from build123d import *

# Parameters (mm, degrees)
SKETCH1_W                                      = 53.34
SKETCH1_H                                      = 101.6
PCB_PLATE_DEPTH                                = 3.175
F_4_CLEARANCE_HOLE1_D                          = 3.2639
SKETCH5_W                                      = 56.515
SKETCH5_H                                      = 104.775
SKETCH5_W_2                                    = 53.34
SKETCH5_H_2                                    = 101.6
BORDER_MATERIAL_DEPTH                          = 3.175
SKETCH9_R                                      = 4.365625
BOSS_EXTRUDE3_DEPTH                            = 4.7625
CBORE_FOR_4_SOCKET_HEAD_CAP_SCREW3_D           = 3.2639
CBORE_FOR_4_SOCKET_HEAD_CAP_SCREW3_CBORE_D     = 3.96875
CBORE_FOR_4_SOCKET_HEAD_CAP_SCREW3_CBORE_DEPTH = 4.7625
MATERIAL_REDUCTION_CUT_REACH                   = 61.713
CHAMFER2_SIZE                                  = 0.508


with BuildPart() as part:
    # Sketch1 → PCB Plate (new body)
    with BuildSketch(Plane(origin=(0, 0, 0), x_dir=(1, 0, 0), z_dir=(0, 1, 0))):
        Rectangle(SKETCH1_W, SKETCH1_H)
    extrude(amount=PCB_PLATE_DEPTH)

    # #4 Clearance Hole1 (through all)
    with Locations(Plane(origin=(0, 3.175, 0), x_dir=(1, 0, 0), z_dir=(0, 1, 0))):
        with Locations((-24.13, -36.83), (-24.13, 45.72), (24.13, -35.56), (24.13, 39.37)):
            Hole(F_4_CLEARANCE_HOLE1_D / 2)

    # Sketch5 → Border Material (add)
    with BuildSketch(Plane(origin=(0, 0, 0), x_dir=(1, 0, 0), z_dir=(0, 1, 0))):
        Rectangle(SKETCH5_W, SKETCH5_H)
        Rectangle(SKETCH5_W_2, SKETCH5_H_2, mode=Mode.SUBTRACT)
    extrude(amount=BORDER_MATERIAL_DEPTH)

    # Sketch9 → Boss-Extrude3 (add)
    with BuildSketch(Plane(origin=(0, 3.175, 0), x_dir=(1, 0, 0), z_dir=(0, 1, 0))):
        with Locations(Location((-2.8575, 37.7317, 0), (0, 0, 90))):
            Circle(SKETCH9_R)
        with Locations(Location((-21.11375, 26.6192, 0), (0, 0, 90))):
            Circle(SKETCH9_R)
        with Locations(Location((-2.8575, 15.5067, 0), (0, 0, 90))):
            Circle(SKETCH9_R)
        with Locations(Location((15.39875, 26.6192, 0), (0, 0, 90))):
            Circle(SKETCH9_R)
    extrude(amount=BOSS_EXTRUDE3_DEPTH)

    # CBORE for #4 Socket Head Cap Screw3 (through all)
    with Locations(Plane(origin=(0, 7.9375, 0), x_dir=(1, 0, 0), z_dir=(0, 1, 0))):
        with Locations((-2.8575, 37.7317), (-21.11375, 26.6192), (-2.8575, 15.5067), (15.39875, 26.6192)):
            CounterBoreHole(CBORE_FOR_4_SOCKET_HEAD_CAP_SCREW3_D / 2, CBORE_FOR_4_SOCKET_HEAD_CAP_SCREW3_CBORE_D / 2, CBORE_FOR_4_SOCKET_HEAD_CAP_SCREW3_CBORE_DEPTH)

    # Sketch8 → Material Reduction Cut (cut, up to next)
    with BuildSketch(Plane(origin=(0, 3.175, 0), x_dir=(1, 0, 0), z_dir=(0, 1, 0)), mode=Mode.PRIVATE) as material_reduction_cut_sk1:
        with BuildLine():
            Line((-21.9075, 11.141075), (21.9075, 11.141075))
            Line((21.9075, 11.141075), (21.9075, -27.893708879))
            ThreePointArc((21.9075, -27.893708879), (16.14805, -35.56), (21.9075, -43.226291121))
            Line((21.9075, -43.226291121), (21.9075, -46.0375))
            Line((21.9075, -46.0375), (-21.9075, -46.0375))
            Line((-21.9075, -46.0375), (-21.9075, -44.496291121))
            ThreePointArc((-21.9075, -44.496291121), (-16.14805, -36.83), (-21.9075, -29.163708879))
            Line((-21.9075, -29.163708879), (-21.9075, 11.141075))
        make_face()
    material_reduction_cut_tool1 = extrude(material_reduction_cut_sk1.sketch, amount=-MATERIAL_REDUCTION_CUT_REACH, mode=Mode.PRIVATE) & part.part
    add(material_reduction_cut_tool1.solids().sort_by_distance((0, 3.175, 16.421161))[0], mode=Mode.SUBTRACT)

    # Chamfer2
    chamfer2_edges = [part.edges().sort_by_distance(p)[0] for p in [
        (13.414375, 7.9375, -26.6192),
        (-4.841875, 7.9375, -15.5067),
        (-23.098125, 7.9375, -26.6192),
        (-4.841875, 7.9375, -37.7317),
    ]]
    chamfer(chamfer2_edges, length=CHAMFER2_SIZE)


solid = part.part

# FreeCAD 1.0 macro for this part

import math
import FreeCAD as App
import Part
import Sketcher
from FreeCAD import Vector
Q = App.Units.Quantity


def edges_at(feature, points):
    """Names of the edges that pass closest to the given points."""
    edges = feature.Shape.Edges
    near = lambda p: min(range(len(edges)), key=lambda i: edges[i].distToShape(Part.Vertex(*p))[0])
    return sorted({f"Edge{near(p) + 1}" for p in points})


def add_polygon(sketch, points):
    """Adds a closed chain of lines whose ends are joined by coincident constraints."""
    first, n = sketch.GeometryCount, len(points)
    for a, b in zip(points, points[1:] + points[:1]):
        sketch.addGeometry(Part.LineSegment(App.Vector(*a, 0), App.Vector(*b, 0)), False)
    for i in range(n):
        sketch.addConstraint(Sketcher.Constraint("Coincident", first + i, 2, first + (i + 1) % n, 1))

doc = App.newDocument("Part")
body = doc.addObject("PartDesign::Body", "Body")

# Sketch on XZ plane
sketch1 = doc.addObject("Sketcher::SketchObject", "Sketch")
body.addObject(sketch1)
sketch1.AttachmentSupport = (doc.XZ_Plane, [""])
sketch1.MapMode = "FlatFace"
add_polygon(sketch1, [(-27, -51), (-27, 51), (27, 51), (27, -51)])  # lines 0-3
sketch1.addConstraint([
    Sketcher.Constraint("Vertical", 0),
    Sketcher.Constraint("Horizontal", 1),
    Sketcher.Constraint("Vertical", 2),
    Sketcher.Constraint("Horizontal", 3),
    Sketcher.Constraint("Symmetric", 0, 2, 2, 2, -1, 1),
    Sketcher.Constraint("DistanceY", 0, 1, 0, 2, Q("4 in")),
    Sketcher.Constraint("DistanceX", 1, 1, 1, 2, Q("2.1 in")),
])
pad1 = doc.addObject("PartDesign::Pad", "Pad")
body.addObject(pad1)
pad1.Profile = sketch1
pad1.Length = Q("0.125 in")
pad1.Reversed = True

# Sketch on XZ plane
sketch2 = doc.addObject("Sketcher::SketchObject", "Sketch001")
body.addObject(sketch2)
sketch2.AttachmentSupport = (doc.XZ_Plane, [""])
sketch2.MapMode = "FlatFace"
sketch2.AttachmentOffset = App.Placement(Vector(0, 0, -0.125 * 25.4), App.Rotation())
sketch2.addGeometry([
    Part.Circle(Vector(-24.1, 36.8, 0), Vector(0, 0, 1), 1.6),
    Part.Circle(Vector(-24.1, -45.7, 0), Vector(0, 0, 1), 1.6),
    Part.Circle(Vector(24.1, 35.6, 0), Vector(0, 0, 1), 1.6),
    Part.Circle(Vector(24.1, -39.4, 0), Vector(0, 0, 1), 1.6),
], False)
sketch2.addConstraint([
    Sketcher.Constraint("Equal", 0, 1),
    Sketcher.Constraint("Equal", 1, 2),
    Sketcher.Constraint("Equal", 2, 3),
    Sketcher.Constraint("Vertical", 0, 3, 1, 3),
    Sketcher.Constraint("Vertical", 2, 3, 3, 3),
    Sketcher.Constraint("DistanceY", 3, 3, 0, 3, Q("3 in")),
    Sketcher.Constraint("Diameter", 0, Q("0.1285 in")),
    Sketcher.Constraint("DistanceY", 1, 3, -1, 1, Q("1.8 in")),
    Sketcher.Constraint("DistanceY", -1, 1, 2, 3, Q("1.4 in")),
    Sketcher.Constraint("DistanceX", 0, 3, 2, 3, Q("1.9 in")),
    Sketcher.Constraint("DistanceX", 0, 3, -1, 1, Q("0.95 in")),
    Sketcher.Constraint("DistanceY", -1, 1, 0, 3, Q("1.45 in")),
])
doc.recompute()
hole = doc.addObject("PartDesign::Hole", "Hole")
body.addObject(hole)
hole.Profile = sketch2
hole.ThreadType = "None"
hole.Diameter = Q("0.1285 in")
hole.DepthType = "ThroughAll"
hole.Reversed = True

# Sketch on XZ plane
sketch3 = doc.addObject("Sketcher::SketchObject", "Sketch002")
body.addObject(sketch3)
sketch3.AttachmentSupport = (doc.XZ_Plane, [""])
sketch3.MapMode = "FlatFace"
add_polygon(sketch3, [(-28, -52), (-28, 52), (28, 52), (28, -52)])  # lines 0-3
add_polygon(sketch3, [(27, 51), (-27, 51), (-27, -51), (27, -51)])  # lines 4-7
sketch3.addConstraint([
    Sketcher.Constraint("Vertical", 0),
    Sketcher.Constraint("Horizontal", 1),
    Sketcher.Constraint("Vertical", 2),
    Sketcher.Constraint("Horizontal", 3),
    Sketcher.Constraint("Horizontal", 4),
    Sketcher.Constraint("Vertical", 5),
    Sketcher.Constraint("Horizontal", 6),
    Sketcher.Constraint("Vertical", 7),
    Sketcher.Constraint("Symmetric", 0, 2, 2, 2, -1, 1),
    Sketcher.Constraint("Symmetric", 4, 2, 6, 2, -1, 1),
    Sketcher.Constraint("DistanceY", 5, 2, 5, 1, Q("4 in")),
    Sketcher.Constraint("DistanceX", 4, 2, 4, 1, Q("2.1 in")),
    Sketcher.Constraint("DistanceX", 1, 1, 1, 2, Q("2.225 in")),
    Sketcher.Constraint("DistanceY", 0, 1, 0, 2, Q("4.125 in")),
])
pad2 = doc.addObject("PartDesign::Pad", "Pad001")
body.addObject(pad2)
pad2.Profile = sketch3
pad2.Length = Q("0.125 in")
pad2.Reversed = True

# Sketch on XZ plane
sketch4 = doc.addObject("Sketcher::SketchObject", "Sketch003")
body.addObject(sketch4)
sketch4.AttachmentSupport = (doc.XZ_Plane, [""])
sketch4.MapMode = "FlatFace"
sketch4.AttachmentOffset = App.Placement(Vector(0, 0, -0.125 * 25.4), App.Rotation())
sketch4.addGeometry([
    Part.Circle(Vector(-2.9, -37.7, 0), Vector(0, 0, 1), 4.4),
    Part.Circle(Vector(-21.1, -26.6, 0), Vector(0, 0, 1), 4.4),
    Part.Circle(Vector(-2.9, -15.5, 0), Vector(0, 0, 1), 4.4),
    Part.Circle(Vector(15.4, -26.6, 0), Vector(0, 0, 1), 4.4),
], False)
sketch4.addConstraint([
    Sketcher.Constraint("Equal", 0, 1),
    Sketcher.Constraint("Equal", 1, 2),
    Sketcher.Constraint("Equal", 2, 3),
    Sketcher.Constraint("Horizontal", 1, 3, 3, 3),
    Sketcher.Constraint("Vertical", 0, 3, 2, 3),
    Sketcher.Constraint("Diameter", 0, Q("0.34375 in")),
    Sketcher.Constraint("DistanceY", 1, 3, -1, 1, Q("1.048 in")),
    Sketcher.Constraint("DistanceX", 1, 3, 0, 3, Q("0.71875 in")),
    Sketcher.Constraint("DistanceY", 0, 3, 1, 3, Q("0.4375 in")),
    Sketcher.Constraint("DistanceY", 1, 3, 2, 3, Q("0.4375 in")),
    Sketcher.Constraint("DistanceX", 0, 3, 3, 3, Q("0.71875 in")),
    Sketcher.Constraint("DistanceX", 0, 3, -1, 1, Q("0.1125 in")),
])
pad3 = doc.addObject("PartDesign::Pad", "Pad002")
body.addObject(pad3)
pad3.Profile = sketch4
pad3.Length = Q("0.1875 in")
pad3.Reversed = True

# Sketch on XZ plane
sketch5 = doc.addObject("Sketcher::SketchObject", "Sketch004")
body.addObject(sketch5)
sketch5.AttachmentSupport = (doc.XZ_Plane, [""])
sketch5.MapMode = "FlatFace"
sketch5.AttachmentOffset = App.Placement(Vector(0, 0, -0.3125 * 25.4), App.Rotation())
sketch5.addGeometry([
    Part.Circle(Vector(-2.9, -37.7, 0), Vector(0, 0, 1), 1.6),
    Part.Circle(Vector(-21.1, -26.6, 0), Vector(0, 0, 1), 1.6),
    Part.Circle(Vector(-2.9, -15.5, 0), Vector(0, 0, 1), 1.6),
    Part.Circle(Vector(15.4, -26.6, 0), Vector(0, 0, 1), 1.6),
], False)
sketch5.addConstraint([
    Sketcher.Constraint("Equal", 0, 1),
    Sketcher.Constraint("Equal", 1, 2),
    Sketcher.Constraint("Equal", 2, 3),
    Sketcher.Constraint("Horizontal", 1, 3, 3, 3),
    Sketcher.Constraint("Vertical", 0, 3, 2, 3),
    Sketcher.Constraint("Diameter", 0, Q("0.1285 in")),
    Sketcher.Constraint("DistanceY", 1, 3, -1, 1, Q("1.048 in")),
    Sketcher.Constraint("DistanceX", 1, 3, 0, 3, Q("0.71875 in")),
    Sketcher.Constraint("DistanceY", 0, 3, 1, 3, Q("0.4375 in")),
    Sketcher.Constraint("DistanceY", 1, 3, 2, 3, Q("0.4375 in")),
    Sketcher.Constraint("DistanceX", 0, 3, 3, 3, Q("0.71875 in")),
    Sketcher.Constraint("DistanceX", 0, 3, -1, 1, Q("0.1125 in")),
])
doc.recompute()
hole2 = doc.addObject("PartDesign::Hole", "Hole001")
body.addObject(hole2)
hole2.Profile = sketch5
hole2.ThreadType = "None"
hole2.Diameter = Q("0.1285 in")
hole2.DepthType = "ThroughAll"
hole2.HoleCutType = "Counterbore"
hole2.HoleCutDiameter = Q("0.15625 in")
hole2.HoleCutDepth = Q("0.1875 in")
hole2.Reversed = True

# Sketch on XZ plane
sketch6 = doc.addObject("Sketcher::SketchObject", "Sketch005")
body.addObject(sketch6)
sketch6.AttachmentSupport = (doc.XZ_Plane, [""])
sketch6.MapMode = "FlatFace"
sketch6.AttachmentOffset = App.Placement(Vector(0, 0, -0.125 * 25.4), App.Rotation())
sketch6.addGeometry([
    Part.LineSegment(Vector(21.9, -11.1, 0), Vector(-21.9, -11.1, 0)),  # 0
    Part.LineSegment(Vector(-21.9, -11.1, 0), Vector(-21.9, 29.2, 0)),  # 1
    Part.ArcOfCircle(Part.Circle(Vector(-24.1, 36.8, 0), Vector(0, 0, 1), 8), math.radians(-74), math.radians(74)),  # 2
    Part.LineSegment(Vector(-21.9, 44.5, 0), Vector(-21.9, 46, 0)),  # 3
    Part.LineSegment(Vector(-21.9, 46, 0), Vector(21.9, 46, 0)),  # 4
    Part.LineSegment(Vector(21.9, 46, 0), Vector(21.9, 43.2, 0)),  # 5
    Part.ArcOfCircle(Part.Circle(Vector(24.1, 35.6, 0), Vector(0, 0, 1), 8), math.radians(106), math.radians(254)),  # 6
    Part.LineSegment(Vector(21.9, 27.9, 0), Vector(21.9, -11.1, 0)),  # 7
], False)
sketch6.addConstraint([
    Sketcher.Constraint("Coincident", 0, 2, 1, 1),
    Sketcher.Constraint("Coincident", 1, 2, 2, 1),
    Sketcher.Constraint("Coincident", 2, 2, 3, 1),
    Sketcher.Constraint("Coincident", 3, 2, 4, 1),
    Sketcher.Constraint("Coincident", 4, 2, 5, 1),
    Sketcher.Constraint("Coincident", 5, 2, 6, 1),
    Sketcher.Constraint("Coincident", 6, 2, 7, 1),
    Sketcher.Constraint("Coincident", 7, 2, 0, 1),
    Sketcher.Constraint("Horizontal", 0),
    Sketcher.Constraint("Vertical", 1),
    Sketcher.Constraint("Vertical", 3),
    Sketcher.Constraint("Horizontal", 4),
    Sketcher.Constraint("Vertical", 5),
    Sketcher.Constraint("Vertical", 7),
    Sketcher.Constraint("Equal", 2, 6),
    Sketcher.Constraint("Vertical", 1, 2, 2, 2),
    Sketcher.Constraint("Vertical", 5, 2, 6, 2),
    Sketcher.Constraint("DistanceY", -1, 1, 6, 3, Q("1.4 in")),
    Sketcher.Constraint("DistanceX", 2, 3, 6, 3, Q("1.9 in")),
    Sketcher.Constraint("DistanceX", 0, 2, 0, 1, Q("1.725 in")),
    Sketcher.Constraint("DistanceX", 2, 3, -1, 1, Q("0.95 in")),
    Sketcher.Constraint("DistanceY", -1, 1, 2, 3, Q("1.45 in")),
    Sketcher.Constraint("DistanceY", 5, 2, 2, 2, Q("0.05 in")),
    Sketcher.Constraint("DistanceY", -1, 1, 3, 2, Q("1.8125 in")),
    Sketcher.Constraint("Radius", 2, Q("7.98195 mm")),
    Sketcher.Constraint("DistanceY", 1, 1, 1, 2, Q("40.304784 mm")),
])
pocket1 = doc.addObject("PartDesign::Pocket", "Pocket")
body.addObject(pocket1)
pocket1.Profile = sketch6
pocket1.Type = "UpToFirst"
pocket1.Reversed = True
doc.recompute()

chamfer = doc.addObject("PartDesign::Chamfer", "Chamfer")
body.addObject(chamfer)
chamfer.Base = (pocket1, edges_at(pocket1, [
    (13.414, 7.938, -26.619),
    (-4.842, 7.938, -15.507),
    (-23.098, 7.938, -26.619),
    (-4.842, 7.938, -37.732),
]))
chamfer.Size = Q("0.02 in")

doc.recompute()
